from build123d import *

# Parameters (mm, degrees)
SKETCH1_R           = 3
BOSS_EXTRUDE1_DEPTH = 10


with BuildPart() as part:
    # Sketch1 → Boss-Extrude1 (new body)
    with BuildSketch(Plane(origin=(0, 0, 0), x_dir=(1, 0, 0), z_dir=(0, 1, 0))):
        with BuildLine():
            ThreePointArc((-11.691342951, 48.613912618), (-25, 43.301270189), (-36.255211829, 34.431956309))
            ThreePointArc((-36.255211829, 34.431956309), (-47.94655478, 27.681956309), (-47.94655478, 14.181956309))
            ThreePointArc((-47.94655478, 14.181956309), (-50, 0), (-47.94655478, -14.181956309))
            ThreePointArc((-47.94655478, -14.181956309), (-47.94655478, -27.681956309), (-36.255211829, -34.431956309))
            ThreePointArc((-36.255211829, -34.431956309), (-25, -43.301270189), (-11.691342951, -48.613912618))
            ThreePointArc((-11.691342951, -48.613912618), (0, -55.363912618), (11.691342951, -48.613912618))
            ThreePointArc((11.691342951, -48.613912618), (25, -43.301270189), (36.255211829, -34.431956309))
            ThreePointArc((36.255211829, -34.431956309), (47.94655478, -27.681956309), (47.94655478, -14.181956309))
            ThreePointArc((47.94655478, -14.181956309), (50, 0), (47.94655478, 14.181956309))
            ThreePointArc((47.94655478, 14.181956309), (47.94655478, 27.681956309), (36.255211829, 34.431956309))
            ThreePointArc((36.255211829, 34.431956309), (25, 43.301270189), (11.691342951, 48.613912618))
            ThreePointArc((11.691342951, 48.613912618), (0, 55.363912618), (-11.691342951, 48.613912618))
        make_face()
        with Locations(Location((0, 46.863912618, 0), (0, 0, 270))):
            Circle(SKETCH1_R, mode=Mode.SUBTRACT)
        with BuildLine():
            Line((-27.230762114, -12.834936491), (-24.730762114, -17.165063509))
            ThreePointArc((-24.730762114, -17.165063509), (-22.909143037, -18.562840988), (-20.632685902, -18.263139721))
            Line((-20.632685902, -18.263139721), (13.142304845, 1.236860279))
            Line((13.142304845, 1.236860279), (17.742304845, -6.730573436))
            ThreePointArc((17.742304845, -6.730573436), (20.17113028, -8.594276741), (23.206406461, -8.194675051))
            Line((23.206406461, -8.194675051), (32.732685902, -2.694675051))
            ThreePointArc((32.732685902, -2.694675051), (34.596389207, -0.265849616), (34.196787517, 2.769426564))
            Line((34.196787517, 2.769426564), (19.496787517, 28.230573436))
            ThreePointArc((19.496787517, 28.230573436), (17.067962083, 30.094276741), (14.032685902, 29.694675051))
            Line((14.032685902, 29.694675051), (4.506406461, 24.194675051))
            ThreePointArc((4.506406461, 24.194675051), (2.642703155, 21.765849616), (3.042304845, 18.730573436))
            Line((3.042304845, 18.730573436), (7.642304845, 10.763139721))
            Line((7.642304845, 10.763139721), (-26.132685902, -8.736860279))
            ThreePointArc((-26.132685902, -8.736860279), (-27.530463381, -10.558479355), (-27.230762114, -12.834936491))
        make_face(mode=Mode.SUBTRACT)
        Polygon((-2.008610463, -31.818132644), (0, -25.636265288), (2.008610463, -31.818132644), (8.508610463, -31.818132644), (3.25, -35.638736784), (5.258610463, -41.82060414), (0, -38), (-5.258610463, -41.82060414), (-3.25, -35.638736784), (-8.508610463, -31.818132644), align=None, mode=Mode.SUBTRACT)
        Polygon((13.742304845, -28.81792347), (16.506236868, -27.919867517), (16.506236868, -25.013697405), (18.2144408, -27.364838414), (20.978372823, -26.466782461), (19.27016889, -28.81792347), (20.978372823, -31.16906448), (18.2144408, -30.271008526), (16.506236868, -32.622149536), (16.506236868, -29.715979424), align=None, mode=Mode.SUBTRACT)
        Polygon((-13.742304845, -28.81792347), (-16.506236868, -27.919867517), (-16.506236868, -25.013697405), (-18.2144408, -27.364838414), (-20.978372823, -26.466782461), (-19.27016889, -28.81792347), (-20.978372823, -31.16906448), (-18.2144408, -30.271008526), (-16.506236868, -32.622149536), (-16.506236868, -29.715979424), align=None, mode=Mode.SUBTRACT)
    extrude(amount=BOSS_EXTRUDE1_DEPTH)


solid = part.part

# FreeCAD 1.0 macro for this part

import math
import FreeCAD as App
import Part
import Sketcher

V = App.Vector
Q = App.Units.Quantity

doc = App.newDocument("Part")
body = doc.addObject("PartDesign::Body", "Body")

sketch1 = doc.addObject("Sketcher::SketchObject", "Sketch")
body.addObject(sketch1)
sketch1.AttachmentSupport = (doc.XZ_Plane, [""])
sketch1.MapMode = "FlatFace"
sketch1.addGeometry([
    Part.ArcOfCircle(Part.Circle(V(0, 0, 0), V(0, 0, 1), 50), math.radians(-136), math.radians(-104)),
    Part.ArcOfCircle(Part.Circle(V(-36.3, -20.9, 0), V(0, 0, 1), 13.5), math.radians(150), math.radians(270)),
    Part.ArcOfCircle(Part.Circle(V(0, 0, 0), V(0, 0, 1), 50), math.radians(164), math.radians(196)),
    Part.ArcOfCircle(Part.Circle(V(-36.3, 20.9, 0), V(0, 0, 1), 13.5), math.radians(90), math.radians(210)),
    Part.ArcOfCircle(Part.Circle(V(0, 0, 0), V(0, 0, 1), 50), math.radians(104), math.radians(136)),
    Part.ArcOfCircle(Part.Circle(V(0, 41.9, 0), V(0, 0, 1), 13.5), math.radians(30), math.radians(150)),
    Part.ArcOfCircle(Part.Circle(V(0, 0, 0), V(0, 0, 1), 50), math.radians(44), math.radians(76)),
    Part.ArcOfCircle(Part.Circle(V(36.3, 20.9, 0), V(0, 0, 1), 13.5), math.radians(-30), math.radians(90)),
    Part.ArcOfCircle(Part.Circle(V(0, 0, 0), V(0, 0, 1), 50), math.radians(-16), math.radians(16)),
    Part.ArcOfCircle(Part.Circle(V(36.3, -20.9, 0), V(0, 0, 1), 13.5), math.radians(-90), math.radians(30)),
    Part.ArcOfCircle(Part.Circle(V(0, 0, 0), V(0, 0, 1), 50), math.radians(-76), math.radians(-44)),
    Part.ArcOfCircle(Part.Circle(V(0, -41.9, 0), V(0, 0, 1), 13.5), math.radians(-150), math.radians(-30)),
    Part.LineSegment(V(-16.5, 27.9, 0), V(-13.7, 28.8, 0)),
    Part.LineSegment(V(-13.7, 28.8, 0), V(-16.5, 29.7, 0)),
    Part.LineSegment(V(-16.5, 29.7, 0), V(-16.5, 32.6, 0)),
    Part.LineSegment(V(-16.5, 32.6, 0), V(-18.2, 30.3, 0)),
    Part.LineSegment(V(-18.2, 30.3, 0), V(-21, 31.2, 0)),
    Part.LineSegment(V(-21, 31.2, 0), V(-19.3, 28.8, 0)),
    Part.LineSegment(V(-19.3, 28.8, 0), V(-21, 26.5, 0)),
    Part.LineSegment(V(-21, 26.5, 0), V(-18.2, 27.4, 0)),
    Part.LineSegment(V(-18.2, 27.4, 0), V(-16.5, 25, 0)),
    Part.LineSegment(V(-16.5, 25, 0), V(-16.5, 27.9, 0)),
    Part.LineSegment(V(-8.5, 31.8, 0), V(-2, 31.8, 0)),
    Part.LineSegment(V(-2, 31.8, 0), V(0, 25.6, 0)),
    Part.LineSegment(V(0, 25.6, 0), V(2, 31.8, 0)),
    Part.LineSegment(V(2, 31.8, 0), V(8.5, 31.8, 0)),
    Part.LineSegment(V(8.5, 31.8, 0), V(3.2, 35.6, 0)),
    Part.LineSegment(V(3.2, 35.6, 0), V(5.3, 41.8, 0)),
    Part.LineSegment(V(5.3, 41.8, 0), V(0, 38, 0)),
    Part.LineSegment(V(0, 38, 0), V(-5.3, 41.8, 0)),
    Part.LineSegment(V(-5.3, 41.8, 0), V(-3.2, 35.6, 0)),
    Part.LineSegment(V(-3.2, 35.6, 0), V(-8.5, 31.8, 0)),
    Part.LineSegment(V(16.5, 29.7, 0), V(13.7, 28.8, 0)),
    Part.LineSegment(V(13.7, 28.8, 0), V(16.5, 27.9, 0)),
    Part.LineSegment(V(16.5, 27.9, 0), V(16.5, 25, 0)),
    Part.LineSegment(V(16.5, 25, 0), V(18.2, 27.4, 0)),
    Part.LineSegment(V(18.2, 27.4, 0), V(21, 26.5, 0)),
    Part.LineSegment(V(21, 26.5, 0), V(19.3, 28.8, 0)),
    Part.LineSegment(V(19.3, 28.8, 0), V(21, 31.2, 0)),
    Part.LineSegment(V(21, 31.2, 0), V(18.2, 30.3, 0)),
    Part.LineSegment(V(18.2, 30.3, 0), V(16.5, 32.6, 0)),
    Part.LineSegment(V(16.5, 32.6, 0), V(16.5, 29.7, 0)),
    Part.Circle(V(0, -46.9, 0), V(0, 0, 1), 3),
    Part.LineSegment(V(-24.7, 17.2, 0), V(-27.2, 12.8, 0)),
    Part.ArcOfCircle(Part.Circle(V(-24.6, 11.3, 0), V(0, 0, 1), 3), math.radians(150), math.radians(240)),
    Part.LineSegment(V(-26.1, 8.7, 0), V(7.6, -10.8, 0)),
    Part.LineSegment(V(7.6, -10.8, 0), V(3, -18.7, 0)),
    Part.ArcOfCircle(Part.Circle(V(6.5, -20.7, 0), V(0, 0, 1), 4), math.radians(150), math.radians(240)),
    Part.LineSegment(V(4.5, -24.2, 0), V(14, -29.7, 0)),
    Part.ArcOfCircle(Part.Circle(V(16, -26.2, 0), V(0, 0, 1), 4), math.radians(-120), math.radians(-30)),
    Part.LineSegment(V(19.5, -28.2, 0), V(34.2, -2.8, 0)),
    Part.ArcOfCircle(Part.Circle(V(30.7, -0.8, 0), V(0, 0, 1), 4), math.radians(-30), math.radians(60)),
    Part.LineSegment(V(32.7, 2.7, 0), V(23.2, 8.2, 0)),
    Part.ArcOfCircle(Part.Circle(V(21.2, 4.7, 0), V(0, 0, 1), 4), math.radians(60), math.radians(150)),
    Part.LineSegment(V(17.7, 6.7, 0), V(13.1, -1.2, 0)),
    Part.LineSegment(V(13.1, -1.2, 0), V(-20.6, 18.3, 0)),
    Part.ArcOfCircle(Part.Circle(V(-22.1, 15.7, 0), V(0, 0, 1), 3), math.radians(60), math.radians(150)),
], False)
sketch1.addConstraint([
    Sketcher.Constraint("Coincident", 0, 1, 1, 2),
    Sketcher.Constraint("Coincident", 1, 1, 2, 2),
    Sketcher.Constraint("Coincident", 2, 1, 3, 2),
    Sketcher.Constraint("Coincident", 3, 1, 4, 2),
    Sketcher.Constraint("Coincident", 4, 1, 5, 2),
    Sketcher.Constraint("Coincident", 5, 1, 6, 2),
    Sketcher.Constraint("Coincident", 6, 1, 7, 2),
    Sketcher.Constraint("Coincident", 7, 1, 8, 2),
    Sketcher.Constraint("Coincident", 8, 1, 9, 2),
    Sketcher.Constraint("Coincident", 9, 1, 10, 2),
    Sketcher.Constraint("Coincident", 10, 1, 11, 2),
    Sketcher.Constraint("Coincident", 11, 1, 0, 2),
    Sketcher.Constraint("Coincident", 12, 2, 13, 1),
    Sketcher.Constraint("Coincident", 13, 2, 14, 1),
    Sketcher.Constraint("Coincident", 14, 2, 15, 1),
    Sketcher.Constraint("Coincident", 15, 2, 16, 1),
    Sketcher.Constraint("Coincident", 16, 2, 17, 1),
    Sketcher.Constraint("Coincident", 17, 2, 18, 1),
    Sketcher.Constraint("Coincident", 18, 2, 19, 1),
    Sketcher.Constraint("Coincident", 19, 2, 20, 1),
    Sketcher.Constraint("Coincident", 20, 2, 21, 1),
    Sketcher.Constraint("Coincident", 21, 2, 12, 1),
    Sketcher.Constraint("Coincident", 22, 2, 23, 1),
    Sketcher.Constraint("Coincident", 23, 2, 24, 1),
    Sketcher.Constraint("Coincident", 24, 2, 25, 1),
    Sketcher.Constraint("Coincident", 25, 2, 26, 1),
    Sketcher.Constraint("Coincident", 26, 2, 27, 1),
    Sketcher.Constraint("Coincident", 27, 2, 28, 1),
    Sketcher.Constraint("Coincident", 28, 2, 29, 1),
    Sketcher.Constraint("Coincident", 29, 2, 30, 1),
    Sketcher.Constraint("Coincident", 30, 2, 31, 1),
    Sketcher.Constraint("Coincident", 31, 2, 22, 1),
    Sketcher.Constraint("Coincident", 32, 2, 33, 1),
    Sketcher.Constraint("Coincident", 33, 2, 34, 1),
    Sketcher.Constraint("Coincident", 34, 2, 35, 1),
    Sketcher.Constraint("Coincident", 35, 2, 36, 1),
    Sketcher.Constraint("Coincident", 36, 2, 37, 1),
    Sketcher.Constraint("Coincident", 37, 2, 38, 1),
    Sketcher.Constraint("Coincident", 38, 2, 39, 1),
    Sketcher.Constraint("Coincident", 39, 2, 40, 1),
    Sketcher.Constraint("Coincident", 40, 2, 41, 1),
    Sketcher.Constraint("Coincident", 41, 2, 32, 1),
    Sketcher.Constraint("Tangent", 43, 2, 44, 1),
    Sketcher.Constraint("Tangent", 44, 2, 45, 1),
    Sketcher.Constraint("Coincident", 45, 2, 46, 1),
    Sketcher.Constraint("Tangent", 46, 2, 47, 1),
    Sketcher.Constraint("Tangent", 47, 2, 48, 1),
    Sketcher.Constraint("Tangent", 48, 2, 49, 1),
    Sketcher.Constraint("Tangent", 49, 2, 50, 1),
    Sketcher.Constraint("Tangent", 50, 2, 51, 1),
    Sketcher.Constraint("Tangent", 51, 2, 52, 1),
    Sketcher.Constraint("Tangent", 52, 2, 53, 1),
    Sketcher.Constraint("Tangent", 53, 2, 54, 1),
    Sketcher.Constraint("Coincident", 54, 2, 55, 1),
    Sketcher.Constraint("Tangent", 55, 2, 56, 1),
    Sketcher.Constraint("Tangent", 56, 2, 43, 1),
    Sketcher.Constraint("Vertical", 14),
    Sketcher.Constraint("Vertical", 21),
    Sketcher.Constraint("Horizontal", 22),
    Sketcher.Constraint("Horizontal", 25),
    Sketcher.Constraint("Vertical", 34),
    Sketcher.Constraint("Vertical", 41),
    Sketcher.Constraint("Coincident", 0, 3, -1, 1),
    Sketcher.Constraint("Coincident", 2, 3, -1, 1),
    Sketcher.Constraint("Coincident", 4, 3, -1, 1),
    Sketcher.Constraint("Coincident", 6, 3, -1, 1),
    Sketcher.Constraint("Coincident", 8, 3, -1, 1),
    Sketcher.Constraint("Coincident", 10, 3, -1, 1),
    Sketcher.Constraint("Equal", 0, 2),
    Sketcher.Constraint("Equal", 1, 3),
    Sketcher.Constraint("Equal", 2, 4),
    Sketcher.Constraint("Equal", 3, 5),
    Sketcher.Constraint("Equal", 4, 6),
    Sketcher.Constraint("Equal", 5, 7),
    Sketcher.Constraint("Equal", 6, 8),
    Sketcher.Constraint("Equal", 7, 9),
    Sketcher.Constraint("Equal", 8, 10),
    Sketcher.Constraint("Equal", 9, 11),
    Sketcher.Constraint("Equal", 42, 44),
    Sketcher.Constraint("Equal", 47, 49),
    Sketcher.Constraint("Equal", 49, 51),
    Sketcher.Constraint("Equal", 51, 53),
    Sketcher.Constraint("Equal", 44, 56),
    Sketcher.Constraint("Symmetric", 1, 3, 7, 3, -1, 1),
    Sketcher.Constraint("Symmetric", 3, 3, 9, 3, -1, 1),
    Sketcher.Constraint("Symmetric", 5, 3, 11, 3, -1, 1),
    Sketcher.Constraint("Symmetric", 3, 3, 7, 3, -2),
    Sketcher.Constraint("Symmetric", 22, 2, 24, 2, -2),
    Sketcher.Constraint("Symmetric", 27, 2, 29, 2, -2),
    Sketcher.Constraint("Symmetric", 26, 2, 30, 2, -2),
    Sketcher.Constraint("Symmetric", 12, 2, 32, 2, -2),
    Sketcher.Constraint("Symmetric", 21, 2, 33, 2, -2),
    Sketcher.Constraint("Symmetric", 19, 2, 35, 2, -2),
    Sketcher.Constraint("Symmetric", 18, 2, 36, 2, -2),
    Sketcher.Constraint("Symmetric", 17, 2, 37, 2, -2),
    Sketcher.Constraint("Symmetric", 16, 2, 38, 2, -2),
    Sketcher.Constraint("Symmetric", 15, 2, 39, 2, -2),
    Sketcher.Constraint("Symmetric", 14, 2, 40, 2, -2),
    Sketcher.Constraint("PointOnObject", 5, 3, -2),
    Sketcher.Constraint("PointOnObject", 42, 3, -2),
    Sketcher.Constraint("PointOnObject", 23, 2, -2),
    Sketcher.Constraint("PointOnObject", 28, 2, -2),
    Sketcher.Constraint("Parallel", 13, 16),
    Sketcher.Constraint("Parallel", 15, 18),
    Sketcher.Constraint("Parallel", 12, 19),
    Sketcher.Constraint("Parallel", 17, 20),
    Sketcher.Constraint("Perpendicular", 19, 23),
    Sketcher.Constraint("Perpendicular", 16, 24),
    Sketcher.Constraint("Perpendicular", 18, 26),
    Sketcher.Constraint("Parallel", 24, 27),
    Sketcher.Constraint("Perpendicular", 20, 28),
    Sketcher.Constraint("Parallel", 26, 29),
    Sketcher.Constraint("Parallel", 28, 31),
    Sketcher.Constraint("Perpendicular", 30, 32),
    Sketcher.Constraint("Perpendicular", 29, 35),
    Sketcher.Constraint("Perpendicular", 43, 45),
    Sketcher.Constraint("Perpendicular", 45, 46),
    Sketcher.Constraint("Perpendicular", 46, 48),
    Sketcher.Constraint("Perpendicular", 48, 50),
    Sketcher.Constraint("Perpendicular", 50, 52),
    Sketcher.Constraint("Perpendicular", 52, 54),
    Sketcher.Constraint("Perpendicular", 54, 55),
    Sketcher.Constraint("Horizontal", 12, 2, 17, 2),
    Sketcher.Constraint("Vertical", 3, 3, 0, 1),
    Sketcher.Constraint("Vertical", 16, 2, 18, 2),
    Sketcher.Constraint("Vertical", 15, 2, 19, 2),
    Sketcher.Constraint("Vertical", 14, 2, 20, 2),
    Sketcher.Constraint("Equal", 13, 15),
    Sketcher.Constraint("Equal", 15, 16),
    Sketcher.Constraint("Equal", 16, 17),
    Sketcher.Constraint("Equal", 24, 26),
    Sketcher.Constraint("Equal", 26, 27),
    Sketcher.Constraint("Equal", 27, 28),
    Sketcher.Constraint("Equal", 48, 52),
    Sketcher.Constraint("Equal", 46, 54),
    Sketcher.Constraint("Diameter", 42, Q("6 mm")),
    Sketcher.Constraint("Radius", 0, Q("50 mm")),
    Sketcher.Constraint("Radius", 47, Q("4 mm")),
    Sketcher.Constraint("Radius", 1, Q("13.5 mm")),
    Sketcher.Constraint("Angle", 12, Q("18 deg")),
    Sketcher.Constraint("Angle", 15, Q("-126 deg")),
    Sketcher.Constraint("Angle", 43, Q("-120 deg")),
    Sketcher.Constraint("Distance", 43, Q("5 mm")),
    Sketcher.Constraint("Distance", 45, Q("39 mm")),
    Sketcher.Constraint("Distance", 48, Q("11 mm")),
    Sketcher.Constraint("DistanceX", 22, 1, 22, 2, Q("6.5 mm")),
    Sketcher.Constraint("DistanceY", -1, 1, 28, 2, Q("38 mm")),
    Sketcher.Constraint("Distance", 46, Q("9.2 mm")),
    Sketcher.Constraint("DistanceY", 14, 1, 14, 2, Q("2.90617 mm")),
    Sketcher.Constraint("DistanceX", 1, 3, -1, 1, Q("36.255212 mm")),
    Sketcher.Constraint("DistanceY", -1, 1, 13, 2, Q("29.715979 mm")),
    Sketcher.Constraint("DistanceX", 15, 2, -1, 1, Q("18.214441 mm")),
    Sketcher.Constraint("DistanceY", -1, 1, 44, 2, Q("8.73686 mm")),
    Sketcher.Constraint("DistanceY", -1, 1, 5, 3, Q("41.863913 mm")),
    Sketcher.Constraint("DistanceY", 42, 3, -1, 1, Q("46.863913 mm")),
    Sketcher.Constraint("DistanceX", 44, 3, -1, 1, Q("24.632686 mm")),
])
pad1 = doc.addObject("PartDesign::Pad", "Pad")
body.addObject(pad1)
pad1.Profile = sketch1
pad1.Length = 10
pad1.Reversed = True

doc.recompute()
